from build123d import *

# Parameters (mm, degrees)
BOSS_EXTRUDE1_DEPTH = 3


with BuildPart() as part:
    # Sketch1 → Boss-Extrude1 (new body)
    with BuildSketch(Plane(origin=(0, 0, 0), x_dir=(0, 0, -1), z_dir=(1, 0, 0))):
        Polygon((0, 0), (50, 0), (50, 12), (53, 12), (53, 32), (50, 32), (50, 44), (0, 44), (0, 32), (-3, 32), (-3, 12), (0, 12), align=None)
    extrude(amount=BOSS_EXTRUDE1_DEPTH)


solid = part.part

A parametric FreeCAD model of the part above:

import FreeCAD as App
import Part
import Sketcher
Q = App.Units.Quantity


def add_polygon(sketch, points):
    """Adds a closed chain of lines whose ends are joined by coincident constraints."""
    first, n = sketch.GeometryCount, len(points)
    for a, b in zip(points, points[1:] + points[:1]):
        sketch.addGeometry(Part.LineSegment(App.Vector(*a, 0), App.Vector(*b, 0)), False)
    for i in range(n):
        sketch.addConstraint(Sketcher.Constraint("Coincident", first + i, 2, first + (i + 1) % n, 1))

doc = App.newDocument("Part")
body = doc.addObject("PartDesign::Body", "Body")

# Sketch on YZ plane
sketch1 = body.newObject("Sketcher::SketchObject", "Sketch")
sketch1.AttachmentSupport = (doc.getObject("YZ_Plane"), [""])
sketch1.MapMode = "FlatFace"
add_polygon(sketch1, [(0, 0), (0, -50), (12, -50), (12, -53), (32, -53), (32, -50), (44, -50), (44, 0), (32, 0), (32, 3), (12, 3), (12, 0)])  # lines 0-11
sketch1.addConstraint([
    Sketcher.Constraint("Vertical", 0),
    Sketcher.Constraint("Horizontal", 1),
    Sketcher.Constraint("Vertical", 2),
    Sketcher.Constraint("Horizontal", 3),
    Sketcher.Constraint("Vertical", 4),
    Sketcher.Constraint("Horizontal", 5),
    Sketcher.Constraint("Vertical", 6),
    Sketcher.Constraint("Horizontal", 7),
    Sketcher.Constraint("Vertical", 8),
    Sketcher.Constraint("Horizontal", 9),
    Sketcher.Constraint("Vertical", 10),
    Sketcher.Constraint("Horizontal", 11),
    Sketcher.Constraint("Coincident", 11, 2, -1, 1),
    Sketcher.Constraint("PointOnObject", 6, 2, -1),
    Sketcher.Constraint("Horizontal", 1, 2, 4, 2),
    Sketcher.Constraint("Vertical", 4, 2, 7, 2),
    Sketcher.Constraint("Vertical", 2, 2, 9, 2),
    Sketcher.Constraint("Equal", 1, 5),
    Sketcher.Constraint("Equal", 4, 8),
    Sketcher.Constraint("DistanceX", 1, 1, 1, 2, Q("12 mm")),
    Sketcher.Constraint("DistanceX", 3, 1, 3, 2, Q("20 mm")),
    Sketcher.Constraint("DistanceY", 0, 2, 0, 1, Q("50 mm")),
    Sketcher.Constraint("DistanceY", 2, 2, 2, 1, Q("3 mm")),
])
pad1 = body.newObject("PartDesign::Pad", "Pad")
pad1.Profile = sketch1
pad1.Length = 3

doc.recompute()
